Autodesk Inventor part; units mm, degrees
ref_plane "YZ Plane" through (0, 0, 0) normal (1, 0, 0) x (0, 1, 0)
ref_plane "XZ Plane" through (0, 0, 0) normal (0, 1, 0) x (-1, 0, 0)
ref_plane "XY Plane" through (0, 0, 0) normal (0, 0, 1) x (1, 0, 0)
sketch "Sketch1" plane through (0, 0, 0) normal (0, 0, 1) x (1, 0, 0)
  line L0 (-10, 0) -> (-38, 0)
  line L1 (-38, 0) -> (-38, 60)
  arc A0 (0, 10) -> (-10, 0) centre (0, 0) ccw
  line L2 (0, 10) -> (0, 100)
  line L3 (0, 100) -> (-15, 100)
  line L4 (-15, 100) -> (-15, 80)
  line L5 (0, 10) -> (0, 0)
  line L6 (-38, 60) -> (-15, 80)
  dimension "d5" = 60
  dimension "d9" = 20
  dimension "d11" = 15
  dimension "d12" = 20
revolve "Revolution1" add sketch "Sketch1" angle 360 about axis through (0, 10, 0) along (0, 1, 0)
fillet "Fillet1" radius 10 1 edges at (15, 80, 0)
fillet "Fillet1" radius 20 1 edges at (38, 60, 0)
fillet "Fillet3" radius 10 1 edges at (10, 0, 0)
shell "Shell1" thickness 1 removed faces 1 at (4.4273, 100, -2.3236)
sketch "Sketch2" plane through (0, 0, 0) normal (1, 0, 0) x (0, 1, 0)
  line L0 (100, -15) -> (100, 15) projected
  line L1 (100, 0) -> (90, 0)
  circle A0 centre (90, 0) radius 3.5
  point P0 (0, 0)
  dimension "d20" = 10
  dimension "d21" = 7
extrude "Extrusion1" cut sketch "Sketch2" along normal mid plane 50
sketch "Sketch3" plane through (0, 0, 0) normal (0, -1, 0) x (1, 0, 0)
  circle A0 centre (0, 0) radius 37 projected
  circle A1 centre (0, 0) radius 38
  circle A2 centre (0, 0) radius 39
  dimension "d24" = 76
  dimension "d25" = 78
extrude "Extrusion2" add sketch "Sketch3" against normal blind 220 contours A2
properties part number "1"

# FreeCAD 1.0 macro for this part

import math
import FreeCAD as App
import Part
import Sketcher


def edges_at(feature, points):
    """Names of the edges that pass closest to the given points."""
    edges = feature.Shape.Edges
    near = lambda p: min(range(len(edges)), key=lambda i: edges[i].distToShape(Part.Vertex(*p))[0])
    return sorted({f"Edge{near(p) + 1}" for p in points})


def faces_at(feature, points):
    """Names of the faces that lie closest to the given points."""
    faces = feature.Shape.Faces
    near = lambda p: min(range(len(faces)), key=lambda i: faces[i].distToShape(Part.Vertex(*p))[0])
    return sorted({f"Face{near(p) + 1}" for p in points})

doc = App.newDocument("Part")
body = doc.addObject("PartDesign::Body", "Body")

# Sketch on XY plane
sketch1 = body.newObject("Sketcher::SketchObject", "Sketch")
sketch1.AttachmentSupport = (doc.getObject("XY_Plane"), [""])
sketch1.MapMode = "FlatFace"
sketch1.addGeometry(Part.LineSegment(App.Vector(-38, 0, 0), App.Vector(-10, 0, 0)), False)
sketch1.addGeometry(Part.ArcOfCircle(Part.Circle(App.Vector(0, 0, 0), App.Vector(0, 0, 1), 10), math.radians(90), math.radians(180)), False)
sketch1.addGeometry(Part.LineSegment(App.Vector(0, 10, 0), App.Vector(0, 100, 0)), False)
sketch1.addGeometry(Part.LineSegment(App.Vector(0, 100, 0), App.Vector(-15, 100, 0)), False)
sketch1.addGeometry(Part.LineSegment(App.Vector(-15, 100, 0), App.Vector(-15, 80, 0)), False)
sketch1.addGeometry(Part.LineSegment(App.Vector(-15, 80, 0), App.Vector(-38, 60, 0)), False)
sketch1.addGeometry(Part.LineSegment(App.Vector(-38, 60, 0), App.Vector(-38, 0, 0)), False)
sketch1.addConstraint(Sketcher.Constraint("Coincident", 0, 2, 1, 2))
sketch1.addConstraint(Sketcher.Constraint("Coincident", 1, 1, 2, 1))
sketch1.addConstraint(Sketcher.Constraint("Coincident", 2, 2, 3, 1))
sketch1.addConstraint(Sketcher.Constraint("Coincident", 3, 2, 4, 1))
sketch1.addConstraint(Sketcher.Constraint("Coincident", 4, 2, 5, 1))
sketch1.addConstraint(Sketcher.Constraint("Coincident", 5, 2, 6, 1))
sketch1.addConstraint(Sketcher.Constraint("Coincident", 6, 2, 0, 1))
sketch1.addConstraint(Sketcher.Constraint("Horizontal", 0))
sketch1.addConstraint(Sketcher.Constraint("Vertical", 2))
sketch1.addConstraint(Sketcher.Constraint("Horizontal", 3))
sketch1.addConstraint(Sketcher.Constraint("Vertical", 4))
sketch1.addConstraint(Sketcher.Constraint("Vertical", 6))
sketch1.addConstraint(Sketcher.Constraint("Coincident", 1, 3, -1, 1))
sketch1.addConstraint(Sketcher.Constraint("PointOnObject", 0, 2, -1))
sketch1.addConstraint(Sketcher.Constraint("PointOnObject", 1, 1, -2))
sketch1.addConstraint(Sketcher.Constraint("Radius", 1, 10.0))
sketch1.addConstraint(Sketcher.Constraint("DistanceX", 3, 2, 3, 1, 15.0))
sketch1.addConstraint(Sketcher.Constraint("DistanceY", 4, 2, 4, 1, 20.0))
sketch1.addConstraint(Sketcher.Constraint("DistanceY", 6, 2, 6, 1, 60.0))
sketch1.addConstraint(Sketcher.Constraint("DistanceY", 5, 2, 4, 2, 20.0))
sketch1.addConstraint(Sketcher.Constraint("DistanceX", 0, 1, 0, 2, 28.0))
revolution = body.newObject("PartDesign::Revolution", "Revolution")
revolution.Profile = sketch1
revolution.ReferenceAxis = (sketch1, ["V_Axis"])
revolution.Angle = 360
doc.recompute()

fillet = body.newObject("PartDesign::Fillet", "Fillet")
fillet.Base = (revolution, edges_at(revolution, [(15, 80, 0)]))
fillet.Radius = 10
doc.recompute()

fillet2 = body.newObject("PartDesign::Fillet", "Fillet001")
fillet2.Base = (fillet, edges_at(fillet, [(38, 60, 0)]))
fillet2.Radius = 20
doc.recompute()

fillet3 = body.newObject("PartDesign::Fillet", "Fillet002")
fillet3.Base = (fillet2, edges_at(fillet2, [(10, 0, 0)]))
fillet3.Radius = 10
doc.recompute()

thickness = body.newObject("PartDesign::Thickness", "Thickness")
thickness.Base = (fillet3, faces_at(fillet3, [(4.427, 100, -2.324)]))
thickness.Value = 1
thickness.Reversed = True
thickness.Join = "Intersection"

# Sketch on YZ plane
sketch2 = body.newObject("Sketcher::SketchObject", "Sketch001")
sketch2.AttachmentSupport = (doc.getObject("YZ_Plane"), [""])
sketch2.MapMode = "FlatFace"
sketch2.addGeometry(Part.Circle(App.Vector(90, 0, 0), App.Vector(0, 0, 1), 3.5), False)
sketch2.addConstraint(Sketcher.Constraint("PointOnObject", 0, 3, -1))
sketch2.addConstraint(Sketcher.Constraint("Diameter", 0, 7.0))
sketch2.addConstraint(Sketcher.Constraint("DistanceX", -1, 1, 0, 3, 90.0))
pocket1 = body.newObject("PartDesign::Pocket", "Pocket")
pocket1.Profile = sketch2
pocket1.Length = 50
pocket1.Midplane = True

# Sketch on XZ plane
sketch3 = body.newObject("Sketcher::SketchObject", "Sketch002")
sketch3.AttachmentSupport = (doc.getObject("XZ_Plane"), [""])
sketch3.MapMode = "FlatFace"
sketch3.addGeometry(Part.Circle(App.Vector(0, 0, 0), App.Vector(0, 0, 1), 39), False)
sketch3.addGeometry(Part.Circle(App.Vector(0, 0, 0), App.Vector(0, 0, 1), 38), False)
sketch3.addConstraint(Sketcher.Constraint("Coincident", 0, 3, -1, 1))
sketch3.addConstraint(Sketcher.Constraint("Coincident", 1, 3, -1, 1))
sketch3.addConstraint(Sketcher.Constraint("Diameter", 0, 78.0))
sketch3.addConstraint(Sketcher.Constraint("Diameter", 1, 76.0))
pad1 = body.newObject("PartDesign::Pad", "Pad")
pad1.Profile = sketch3
pad1.Length = 220
pad1.Reversed = True

doc.recompute()
